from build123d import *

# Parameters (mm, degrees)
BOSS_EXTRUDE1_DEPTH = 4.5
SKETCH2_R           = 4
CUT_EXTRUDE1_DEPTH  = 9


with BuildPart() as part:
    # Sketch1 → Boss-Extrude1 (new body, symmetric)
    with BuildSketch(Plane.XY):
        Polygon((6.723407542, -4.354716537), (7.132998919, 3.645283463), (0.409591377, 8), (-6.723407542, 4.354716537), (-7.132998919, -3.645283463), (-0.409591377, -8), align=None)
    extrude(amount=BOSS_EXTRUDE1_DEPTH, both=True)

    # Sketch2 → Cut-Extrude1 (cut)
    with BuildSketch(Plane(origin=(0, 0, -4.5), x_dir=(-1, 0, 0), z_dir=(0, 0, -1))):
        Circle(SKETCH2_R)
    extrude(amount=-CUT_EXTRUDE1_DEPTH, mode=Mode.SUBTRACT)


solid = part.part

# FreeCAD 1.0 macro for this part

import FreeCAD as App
import Part
import Sketcher
from FreeCAD import Vector
Q = App.Units.Quantity

doc = App.newDocument("Part")
params = doc.addObject("Spreadsheet::Sheet", "Params")
for row, (alias, value) in enumerate([
    ("pad1_length", "9 mm"),
    ("sketch2_diameter", "8 mm"),
    ("pocket1_length", "9 mm"),
], start=1):
    params.set(f"A{row}", alias)
    params.set(f"B{row}", "=" + value)
    params.setAlias(f"B{row}", alias)

body = doc.addObject("PartDesign::Body", "Body")

# Sketch on XY plane
sketch1 = body.newObject("Sketcher::SketchObject", "Sketch")
sketch1.AttachmentSupport = (doc.getObject("XY_Plane"), [""])
sketch1.MapMode = "FlatFace"
sketch1.addGeometry([
    Part.LineSegment(Vector(6.723408, -4.354717, 0), Vector(7.132999, 3.645283, 0)),  # 0
    Part.LineSegment(Vector(7.132999, 3.645283, 0), Vector(0.409591, 8, 0)),  # 1
    Part.LineSegment(Vector(0.409591, 8, 0), Vector(-6.723408, 4.354717, 0)),  # 2
    Part.LineSegment(Vector(-6.723408, 4.354717, 0), Vector(-7.132999, -3.645283, 0)),  # 3
    Part.LineSegment(Vector(-7.132999, -3.645283, 0), Vector(-0.409591, -8, 0)),  # 4
    Part.LineSegment(Vector(-0.409591, -8, 0), Vector(6.723408, -4.354717, 0)),  # 5
], False)
sketch1.addConstraint([
    Sketcher.Constraint("Coincident", 0, 2, 1, 1),
    Sketcher.Constraint("Coincident", 1, 2, 2, 1),
    Sketcher.Constraint("Coincident", 2, 2, 3, 1),
    Sketcher.Constraint("Coincident", 3, 2, 4, 1),
    Sketcher.Constraint("Coincident", 4, 2, 5, 1),
    Sketcher.Constraint("Coincident", 5, 2, 0, 1),
    Sketcher.Constraint("Symmetric", 0, 2, 3, 2, -1, 1),
    Sketcher.Constraint("Symmetric", 1, 2, 4, 2, -1, 1),
    Sketcher.Constraint("Symmetric", 2, 2, 5, 2, -1, 1),
    Sketcher.Constraint("Equal", 0, 1),
    Sketcher.Constraint("Equal", 1, 2),
    Sketcher.Constraint("DistanceY", -1, 1, 1, 2, Q("8 mm")),
    Sketcher.Constraint("DistanceY", 3, 2, 2, 2, Q("8 mm")),
    Sketcher.Constraint("DistanceX", -1, 1, 0, 2, Q("7.132999 mm")),
    Sketcher.Constraint("DistanceX", 2, 2, 1, 2, Q("7.132999 mm")),
])
pad1 = body.newObject("PartDesign::Pad", "Pad")
pad1.Profile = sketch1
pad1.setExpression("Length", "Params.pad1_length")
pad1.Midplane = True

# Sketch on XY plane
sketch2 = body.newObject("Sketcher::SketchObject", "Sketch001")
sketch2.AttachmentSupport = (doc.getObject("XY_Plane"), [""])
sketch2.MapMode = "FlatFace"
sketch2.AttachmentOffset = App.Placement(Vector(0, 0, -4.5), App.Rotation())
sketch2.addGeometry(Part.Circle(Vector(0, 0, 0), Vector(0, 0, 1), 4), False)
sketch2.addConstraint([
    Sketcher.Constraint("Coincident", 0, 3, -1, 1),
    Sketcher.Constraint("Diameter", 0, Q("8 mm")),
])
sketch2.setExpression("Constraints[1]", "Params.sketch2_diameter")
pocket1 = body.newObject("PartDesign::Pocket", "Pocket")
pocket1.Profile = sketch2
pocket1.setExpression("Length", "Params.pocket1_length")
pocket1.Reversed = True

doc.recompute()
